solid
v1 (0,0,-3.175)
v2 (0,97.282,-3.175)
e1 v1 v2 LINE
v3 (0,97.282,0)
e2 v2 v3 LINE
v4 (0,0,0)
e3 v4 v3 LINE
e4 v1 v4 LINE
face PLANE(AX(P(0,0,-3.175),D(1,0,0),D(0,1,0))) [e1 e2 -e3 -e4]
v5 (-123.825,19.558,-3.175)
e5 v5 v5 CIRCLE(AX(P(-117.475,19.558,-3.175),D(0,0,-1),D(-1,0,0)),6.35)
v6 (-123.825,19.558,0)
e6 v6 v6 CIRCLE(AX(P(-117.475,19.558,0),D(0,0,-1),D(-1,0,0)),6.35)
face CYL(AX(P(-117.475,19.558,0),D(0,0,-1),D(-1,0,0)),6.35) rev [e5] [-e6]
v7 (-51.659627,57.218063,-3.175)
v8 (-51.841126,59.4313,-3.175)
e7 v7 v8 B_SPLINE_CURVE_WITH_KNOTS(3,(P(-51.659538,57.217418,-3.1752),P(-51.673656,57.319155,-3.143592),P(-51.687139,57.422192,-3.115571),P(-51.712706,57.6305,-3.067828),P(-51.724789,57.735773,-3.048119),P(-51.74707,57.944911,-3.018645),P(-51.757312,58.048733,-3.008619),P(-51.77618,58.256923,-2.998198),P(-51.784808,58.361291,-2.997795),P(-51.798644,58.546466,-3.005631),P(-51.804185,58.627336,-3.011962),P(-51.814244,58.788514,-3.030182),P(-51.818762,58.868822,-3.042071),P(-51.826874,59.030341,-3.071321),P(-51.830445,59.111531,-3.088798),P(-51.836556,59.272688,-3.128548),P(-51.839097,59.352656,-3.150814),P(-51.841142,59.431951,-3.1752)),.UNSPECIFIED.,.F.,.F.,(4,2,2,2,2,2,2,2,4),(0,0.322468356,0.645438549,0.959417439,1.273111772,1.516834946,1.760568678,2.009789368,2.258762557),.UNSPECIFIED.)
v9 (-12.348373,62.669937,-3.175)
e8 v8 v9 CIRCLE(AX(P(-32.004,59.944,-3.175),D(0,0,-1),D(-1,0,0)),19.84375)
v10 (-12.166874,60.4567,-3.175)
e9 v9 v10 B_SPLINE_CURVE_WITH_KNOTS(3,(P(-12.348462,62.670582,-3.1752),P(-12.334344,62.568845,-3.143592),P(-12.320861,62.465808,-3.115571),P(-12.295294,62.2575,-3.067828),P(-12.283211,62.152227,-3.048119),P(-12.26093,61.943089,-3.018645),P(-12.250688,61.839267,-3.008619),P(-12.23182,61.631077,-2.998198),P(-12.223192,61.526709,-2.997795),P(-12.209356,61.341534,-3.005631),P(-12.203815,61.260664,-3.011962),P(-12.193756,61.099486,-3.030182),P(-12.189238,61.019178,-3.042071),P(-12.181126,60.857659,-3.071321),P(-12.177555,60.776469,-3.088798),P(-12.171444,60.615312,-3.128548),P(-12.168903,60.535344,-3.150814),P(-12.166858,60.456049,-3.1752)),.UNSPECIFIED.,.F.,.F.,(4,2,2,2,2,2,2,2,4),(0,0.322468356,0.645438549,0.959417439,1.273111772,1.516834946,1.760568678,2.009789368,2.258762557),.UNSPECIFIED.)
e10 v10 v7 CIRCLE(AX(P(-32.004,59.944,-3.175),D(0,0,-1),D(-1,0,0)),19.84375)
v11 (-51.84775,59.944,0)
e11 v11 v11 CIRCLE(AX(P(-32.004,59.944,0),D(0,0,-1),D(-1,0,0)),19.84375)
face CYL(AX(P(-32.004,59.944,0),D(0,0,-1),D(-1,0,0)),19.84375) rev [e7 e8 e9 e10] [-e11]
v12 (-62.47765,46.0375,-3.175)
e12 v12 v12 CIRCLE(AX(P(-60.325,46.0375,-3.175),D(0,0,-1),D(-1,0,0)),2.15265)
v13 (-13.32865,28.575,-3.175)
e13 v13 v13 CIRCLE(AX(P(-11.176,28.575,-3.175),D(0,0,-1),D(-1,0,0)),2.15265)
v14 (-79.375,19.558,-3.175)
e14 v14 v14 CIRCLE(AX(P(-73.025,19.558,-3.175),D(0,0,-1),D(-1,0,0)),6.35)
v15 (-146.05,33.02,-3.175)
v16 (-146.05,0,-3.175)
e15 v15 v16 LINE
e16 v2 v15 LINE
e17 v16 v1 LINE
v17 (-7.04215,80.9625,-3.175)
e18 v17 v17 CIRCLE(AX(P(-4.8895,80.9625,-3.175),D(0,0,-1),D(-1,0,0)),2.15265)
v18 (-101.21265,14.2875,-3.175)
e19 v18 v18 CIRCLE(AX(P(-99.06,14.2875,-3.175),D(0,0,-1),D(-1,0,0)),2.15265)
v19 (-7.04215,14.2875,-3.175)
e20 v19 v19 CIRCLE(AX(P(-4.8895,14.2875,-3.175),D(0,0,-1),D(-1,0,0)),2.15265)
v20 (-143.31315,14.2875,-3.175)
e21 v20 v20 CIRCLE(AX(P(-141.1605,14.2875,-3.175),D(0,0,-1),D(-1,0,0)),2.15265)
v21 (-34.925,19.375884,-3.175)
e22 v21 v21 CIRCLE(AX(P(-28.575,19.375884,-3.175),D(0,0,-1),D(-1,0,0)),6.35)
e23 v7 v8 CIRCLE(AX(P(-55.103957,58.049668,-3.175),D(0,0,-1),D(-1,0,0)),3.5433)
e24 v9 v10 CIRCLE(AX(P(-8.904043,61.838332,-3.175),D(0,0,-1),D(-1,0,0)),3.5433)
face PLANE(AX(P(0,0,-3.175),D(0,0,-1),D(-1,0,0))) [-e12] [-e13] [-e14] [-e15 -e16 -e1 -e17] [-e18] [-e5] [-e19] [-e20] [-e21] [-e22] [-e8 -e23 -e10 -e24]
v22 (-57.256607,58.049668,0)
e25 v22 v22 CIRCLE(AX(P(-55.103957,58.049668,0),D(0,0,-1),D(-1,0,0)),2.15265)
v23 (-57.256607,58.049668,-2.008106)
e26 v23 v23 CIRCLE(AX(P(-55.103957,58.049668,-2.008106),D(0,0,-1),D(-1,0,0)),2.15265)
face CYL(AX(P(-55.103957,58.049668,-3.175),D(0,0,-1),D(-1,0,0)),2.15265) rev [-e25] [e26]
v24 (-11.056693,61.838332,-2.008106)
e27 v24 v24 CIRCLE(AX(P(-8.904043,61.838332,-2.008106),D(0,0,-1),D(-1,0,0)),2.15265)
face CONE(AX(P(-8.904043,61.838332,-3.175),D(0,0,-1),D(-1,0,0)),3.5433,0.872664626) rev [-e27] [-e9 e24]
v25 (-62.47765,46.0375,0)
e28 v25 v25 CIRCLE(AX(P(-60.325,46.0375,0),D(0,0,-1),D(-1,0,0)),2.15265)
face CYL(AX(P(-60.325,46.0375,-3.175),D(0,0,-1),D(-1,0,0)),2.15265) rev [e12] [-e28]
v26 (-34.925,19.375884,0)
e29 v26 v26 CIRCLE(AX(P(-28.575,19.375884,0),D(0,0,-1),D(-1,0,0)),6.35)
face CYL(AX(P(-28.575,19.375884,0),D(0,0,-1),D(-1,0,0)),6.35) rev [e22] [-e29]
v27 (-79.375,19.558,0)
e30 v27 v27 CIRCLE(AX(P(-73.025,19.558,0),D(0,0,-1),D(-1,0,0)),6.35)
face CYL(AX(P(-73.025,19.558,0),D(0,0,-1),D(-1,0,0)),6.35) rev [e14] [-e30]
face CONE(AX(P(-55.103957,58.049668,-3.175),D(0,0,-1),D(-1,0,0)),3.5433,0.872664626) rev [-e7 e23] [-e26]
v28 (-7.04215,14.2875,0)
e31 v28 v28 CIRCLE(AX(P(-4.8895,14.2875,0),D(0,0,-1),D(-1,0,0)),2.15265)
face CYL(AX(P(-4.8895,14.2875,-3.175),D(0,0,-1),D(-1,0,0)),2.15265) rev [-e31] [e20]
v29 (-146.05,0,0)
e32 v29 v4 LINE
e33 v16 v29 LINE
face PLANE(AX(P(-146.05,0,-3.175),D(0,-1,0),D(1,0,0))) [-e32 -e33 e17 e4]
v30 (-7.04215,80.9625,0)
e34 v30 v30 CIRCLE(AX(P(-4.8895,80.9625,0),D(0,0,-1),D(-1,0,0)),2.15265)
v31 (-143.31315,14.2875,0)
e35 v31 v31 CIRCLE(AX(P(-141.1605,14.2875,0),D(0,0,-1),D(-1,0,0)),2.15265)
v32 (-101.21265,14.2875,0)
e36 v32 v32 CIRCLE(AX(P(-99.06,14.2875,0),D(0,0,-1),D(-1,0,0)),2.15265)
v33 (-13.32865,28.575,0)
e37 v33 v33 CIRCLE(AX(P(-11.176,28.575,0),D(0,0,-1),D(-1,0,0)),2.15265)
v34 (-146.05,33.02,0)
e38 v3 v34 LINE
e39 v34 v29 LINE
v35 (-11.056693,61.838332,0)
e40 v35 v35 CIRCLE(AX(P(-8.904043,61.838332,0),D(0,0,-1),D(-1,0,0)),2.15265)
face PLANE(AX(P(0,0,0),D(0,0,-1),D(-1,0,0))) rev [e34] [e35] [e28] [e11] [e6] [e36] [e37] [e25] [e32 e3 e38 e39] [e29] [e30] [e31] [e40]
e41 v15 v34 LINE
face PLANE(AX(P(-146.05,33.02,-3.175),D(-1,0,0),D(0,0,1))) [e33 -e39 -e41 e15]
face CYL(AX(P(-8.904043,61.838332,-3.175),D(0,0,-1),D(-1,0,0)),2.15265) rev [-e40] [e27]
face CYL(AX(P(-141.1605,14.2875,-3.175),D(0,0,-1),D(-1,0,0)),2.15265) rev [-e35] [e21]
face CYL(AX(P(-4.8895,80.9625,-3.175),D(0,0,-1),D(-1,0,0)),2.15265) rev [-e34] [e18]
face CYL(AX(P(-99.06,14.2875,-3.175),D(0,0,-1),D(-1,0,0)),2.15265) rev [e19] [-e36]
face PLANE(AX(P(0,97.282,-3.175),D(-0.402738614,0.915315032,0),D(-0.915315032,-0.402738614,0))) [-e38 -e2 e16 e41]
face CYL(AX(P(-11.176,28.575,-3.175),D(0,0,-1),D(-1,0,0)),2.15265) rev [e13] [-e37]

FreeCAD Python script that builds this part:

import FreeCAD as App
import Part
import Sketcher
from FreeCAD import Vector
Q = App.Units.Quantity


def add_polygon(sketch, points):
    """Adds a closed chain of lines whose ends are joined by coincident constraints."""
    first, n = sketch.GeometryCount, len(points)
    for a, b in zip(points, points[1:] + points[:1]):
        sketch.addGeometry(Part.LineSegment(App.Vector(*a, 0), App.Vector(*b, 0)), False)
    for i in range(n):
        sketch.addConstraint(Sketcher.Constraint("Coincident", first + i, 2, first + (i + 1) % n, 1))

doc = App.newDocument("Part")
body = doc.addObject("PartDesign::Body", "Body")

sketch1 = body.newObject("Sketcher::SketchObject", "Sketch")
sketch1.AttachmentSupport = (doc.getObject("XY_Plane"), [""])
sketch1.MapMode = "FlatFace"
add_polygon(sketch1, [(0, 97.282), (-146.05, 33.02), (-146.05, 0), (0, 0)])
sketch1.addConstraint([
    Sketcher.Constraint("Vertical", 1),
    Sketcher.Constraint("Horizontal", 2),
    Sketcher.Constraint("Vertical", 3),
    Sketcher.Constraint("Coincident", 2, 2, -1, 1),
    Sketcher.Constraint("DistanceY", 1, 2, 1, 1, Q("1.3 in")),
    Sketcher.Constraint("DistanceX", 2, 1, 2, 2, Q("5.75 in")),
    Sketcher.Constraint("DistanceY", 3, 1, 3, 2, Q("3.83 in")),
])
pad1 = body.newObject("PartDesign::Pad", "Pad")
pad1.Profile = sketch1
pad1.Length = Q("0.125 in")
pad1.Reversed = True

sketch2 = body.newObject("Sketcher::SketchObject", "Sketch001")
sketch2.AttachmentSupport = (doc.getObject("XY_Plane"), [""])
sketch2.MapMode = "FlatFace"
sketch2.AttachmentOffset = App.Placement(Vector(0, 0, -0.125 * 25.4), App.Rotation())
sketch2.addGeometry([
    Part.Circle(Vector(-4.8895, 80.9625, 0), Vector(0, 0, 1), 2.15265),
    Part.Circle(Vector(-4.8895, 14.2875, 0), Vector(0, 0, 1), 2.15265),
    Part.Circle(Vector(-141.1605, 14.2875, 0), Vector(0, 0, 1), 2.15265),
    Part.Circle(Vector(-11.176, 28.575, 0), Vector(0, 0, 1), 2.15265),
    Part.Circle(Vector(-60.325, 46.0375, 0), Vector(0, 0, 1), 2.15265),
    Part.Circle(Vector(-99.06, 14.2875, 0), Vector(0, 0, 1), 2.15265),
], False)
sketch2.addConstraint([
    Sketcher.Constraint("Equal", 0, 1),
    Sketcher.Constraint("Equal", 1, 2),
    Sketcher.Constraint("Equal", 2, 3),
    Sketcher.Constraint("Equal", 3, 4),
    Sketcher.Constraint("Equal", 4, 5),
    Sketcher.Constraint("Horizontal", 1, 3, 2, 3),
    Sketcher.Constraint("Horizontal", 2, 3, 5, 3),
    Sketcher.Constraint("Vertical", 0, 3, 1, 3),
    Sketcher.Constraint("Diameter", 0, Q("0.1695 in")),
    Sketcher.Constraint("DistanceX", 5, 3, -1, 1, Q("3.9 in")),
    Sketcher.Constraint("DistanceX", 3, 3, -1, 1, Q("0.44 in")),
    Sketcher.Constraint("DistanceY", 1, 3, 4, 3, Q("1.25 in")),
    Sketcher.Constraint("DistanceY", -1, 1, 0, 3, Q("3.1875 in")),
    Sketcher.Constraint("DistanceY", -1, 1, 1, 3, Q("0.5625 in")),
    Sketcher.Constraint("DistanceY", -1, 1, 3, 3, Q("1.125 in")),
    Sketcher.Constraint("DistanceX", 4, 3, -1, 1, Q("2.375 in")),
    Sketcher.Constraint("DistanceX", 2, 3, 1, 3, Q("5.365 in")),
    Sketcher.Constraint("DistanceX", 0, 3, -1, 1, Q("0.1925 in")),
])
doc.recompute()
hole = body.newObject("PartDesign::Hole", "Hole")
hole.Profile = sketch2
hole.ThreadType = "None"
hole.Diameter = Q("0.1695 in")
hole.DepthType = "ThroughAll"
hole.Reversed = True

sketch3 = body.newObject("Sketcher::SketchObject", "Sketch002")
sketch3.AttachmentSupport = (doc.getObject("XY_Plane"), [""])
sketch3.MapMode = "FlatFace"
sketch3.AttachmentOffset = App.Placement(Vector(0, 0, -0.125 * 25.4), App.Rotation())
sketch3.addGeometry([
    Part.Circle(Vector(-32.004, 59.944, 0), Vector(0, 0, 1), 19.84375),
    Part.Circle(Vector(-28.575, 19.375884, 0), Vector(0, 0, 1), 6.35),
    Part.Circle(Vector(-73.025, 19.558, 0), Vector(0, 0, 1), 6.35),
    Part.Circle(Vector(-117.475, 19.558, 0), Vector(0, 0, 1), 6.35),
], False)
sketch3.addConstraint([
    Sketcher.Constraint("Equal", 1, 2),
    Sketcher.Constraint("Equal", 2, 3),
    Sketcher.Constraint("Horizontal", 2, 3, 3, 3),
    Sketcher.Constraint("Diameter", 1, Q("0.5 in")),
    Sketcher.Constraint("Diameter", 0, Q("1.5625 in")),
    Sketcher.Constraint("DistanceX", 3, 3, 1, 3, Q("3.5 in")),
    Sketcher.Constraint("DistanceX", 0, 3, -1, 1, Q("1.26 in")),
    Sketcher.Constraint("DistanceY", -1, 1, 0, 3, Q("2.36 in")),
    Sketcher.Constraint("DistanceY", -1, 1, 2, 3, Q("0.77 in")),
    Sketcher.Constraint("DistanceX", 2, 3, 1, 3, Q("1.75 in")),
    Sketcher.Constraint("DistanceX", 1, 3, -1, 1, Q("1.125 in")),
    Sketcher.Constraint("DistanceY", -1, 1, 1, 3, 19.375884),
])
pocket1 = body.newObject("PartDesign::Pocket", "Pocket")
pocket1.Profile = sketch3
pocket1.Type = "ThroughAll"
pocket1.Reversed = True

sketch4 = body.newObject("Sketcher::SketchObject", "Sketch003")
sketch4.AttachmentSupport = (doc.getObject("XY_Plane"), [""])
sketch4.MapMode = "FlatFace"
sketch4.AttachmentOffset = App.Placement(Vector(0, 0, -0.125 * 25.4), App.Rotation())
sketch4.addGeometry([
    Part.Circle(Vector(-8.904043, 61.838332, 0), Vector(0, 0, 1), 2.15265),
    Part.Circle(Vector(-55.103957, 58.049668, 0), Vector(0, 0, 1), 2.15265),
], False)
sketch4.addConstraint([
    Sketcher.Constraint("Equal", 0, 1),
    Sketcher.Constraint("Diameter", 0, Q("0.1695 in")),
    Sketcher.Constraint("DistanceY", -1, 1, 0, 3, 61.838332),
    Sketcher.Constraint("DistanceY", -1, 1, 1, 3, 58.049668),
    Sketcher.Constraint("DistanceX", 0, 3, -1, 1, 8.904043),
    Sketcher.Constraint("DistanceX", 1, 3, -1, 1, 55.103957),
])
doc.recompute()
hole2 = body.newObject("PartDesign::Hole", "Hole001")
hole2.Profile = sketch4
hole2.ThreadType = "None"
hole2.Diameter = Q("0.1695 in")
hole2.DepthType = "Dimension"
hole2.Depth = Q("0.125 in")
hole2.DrillPoint = "Flat"
hole2.HoleCutType = "Countersink"
hole2.HoleCutDiameter = Q("0.279 in")
hole2.HoleCutCountersinkAngle = 100
hole2.Reversed = True

doc.recompute()
